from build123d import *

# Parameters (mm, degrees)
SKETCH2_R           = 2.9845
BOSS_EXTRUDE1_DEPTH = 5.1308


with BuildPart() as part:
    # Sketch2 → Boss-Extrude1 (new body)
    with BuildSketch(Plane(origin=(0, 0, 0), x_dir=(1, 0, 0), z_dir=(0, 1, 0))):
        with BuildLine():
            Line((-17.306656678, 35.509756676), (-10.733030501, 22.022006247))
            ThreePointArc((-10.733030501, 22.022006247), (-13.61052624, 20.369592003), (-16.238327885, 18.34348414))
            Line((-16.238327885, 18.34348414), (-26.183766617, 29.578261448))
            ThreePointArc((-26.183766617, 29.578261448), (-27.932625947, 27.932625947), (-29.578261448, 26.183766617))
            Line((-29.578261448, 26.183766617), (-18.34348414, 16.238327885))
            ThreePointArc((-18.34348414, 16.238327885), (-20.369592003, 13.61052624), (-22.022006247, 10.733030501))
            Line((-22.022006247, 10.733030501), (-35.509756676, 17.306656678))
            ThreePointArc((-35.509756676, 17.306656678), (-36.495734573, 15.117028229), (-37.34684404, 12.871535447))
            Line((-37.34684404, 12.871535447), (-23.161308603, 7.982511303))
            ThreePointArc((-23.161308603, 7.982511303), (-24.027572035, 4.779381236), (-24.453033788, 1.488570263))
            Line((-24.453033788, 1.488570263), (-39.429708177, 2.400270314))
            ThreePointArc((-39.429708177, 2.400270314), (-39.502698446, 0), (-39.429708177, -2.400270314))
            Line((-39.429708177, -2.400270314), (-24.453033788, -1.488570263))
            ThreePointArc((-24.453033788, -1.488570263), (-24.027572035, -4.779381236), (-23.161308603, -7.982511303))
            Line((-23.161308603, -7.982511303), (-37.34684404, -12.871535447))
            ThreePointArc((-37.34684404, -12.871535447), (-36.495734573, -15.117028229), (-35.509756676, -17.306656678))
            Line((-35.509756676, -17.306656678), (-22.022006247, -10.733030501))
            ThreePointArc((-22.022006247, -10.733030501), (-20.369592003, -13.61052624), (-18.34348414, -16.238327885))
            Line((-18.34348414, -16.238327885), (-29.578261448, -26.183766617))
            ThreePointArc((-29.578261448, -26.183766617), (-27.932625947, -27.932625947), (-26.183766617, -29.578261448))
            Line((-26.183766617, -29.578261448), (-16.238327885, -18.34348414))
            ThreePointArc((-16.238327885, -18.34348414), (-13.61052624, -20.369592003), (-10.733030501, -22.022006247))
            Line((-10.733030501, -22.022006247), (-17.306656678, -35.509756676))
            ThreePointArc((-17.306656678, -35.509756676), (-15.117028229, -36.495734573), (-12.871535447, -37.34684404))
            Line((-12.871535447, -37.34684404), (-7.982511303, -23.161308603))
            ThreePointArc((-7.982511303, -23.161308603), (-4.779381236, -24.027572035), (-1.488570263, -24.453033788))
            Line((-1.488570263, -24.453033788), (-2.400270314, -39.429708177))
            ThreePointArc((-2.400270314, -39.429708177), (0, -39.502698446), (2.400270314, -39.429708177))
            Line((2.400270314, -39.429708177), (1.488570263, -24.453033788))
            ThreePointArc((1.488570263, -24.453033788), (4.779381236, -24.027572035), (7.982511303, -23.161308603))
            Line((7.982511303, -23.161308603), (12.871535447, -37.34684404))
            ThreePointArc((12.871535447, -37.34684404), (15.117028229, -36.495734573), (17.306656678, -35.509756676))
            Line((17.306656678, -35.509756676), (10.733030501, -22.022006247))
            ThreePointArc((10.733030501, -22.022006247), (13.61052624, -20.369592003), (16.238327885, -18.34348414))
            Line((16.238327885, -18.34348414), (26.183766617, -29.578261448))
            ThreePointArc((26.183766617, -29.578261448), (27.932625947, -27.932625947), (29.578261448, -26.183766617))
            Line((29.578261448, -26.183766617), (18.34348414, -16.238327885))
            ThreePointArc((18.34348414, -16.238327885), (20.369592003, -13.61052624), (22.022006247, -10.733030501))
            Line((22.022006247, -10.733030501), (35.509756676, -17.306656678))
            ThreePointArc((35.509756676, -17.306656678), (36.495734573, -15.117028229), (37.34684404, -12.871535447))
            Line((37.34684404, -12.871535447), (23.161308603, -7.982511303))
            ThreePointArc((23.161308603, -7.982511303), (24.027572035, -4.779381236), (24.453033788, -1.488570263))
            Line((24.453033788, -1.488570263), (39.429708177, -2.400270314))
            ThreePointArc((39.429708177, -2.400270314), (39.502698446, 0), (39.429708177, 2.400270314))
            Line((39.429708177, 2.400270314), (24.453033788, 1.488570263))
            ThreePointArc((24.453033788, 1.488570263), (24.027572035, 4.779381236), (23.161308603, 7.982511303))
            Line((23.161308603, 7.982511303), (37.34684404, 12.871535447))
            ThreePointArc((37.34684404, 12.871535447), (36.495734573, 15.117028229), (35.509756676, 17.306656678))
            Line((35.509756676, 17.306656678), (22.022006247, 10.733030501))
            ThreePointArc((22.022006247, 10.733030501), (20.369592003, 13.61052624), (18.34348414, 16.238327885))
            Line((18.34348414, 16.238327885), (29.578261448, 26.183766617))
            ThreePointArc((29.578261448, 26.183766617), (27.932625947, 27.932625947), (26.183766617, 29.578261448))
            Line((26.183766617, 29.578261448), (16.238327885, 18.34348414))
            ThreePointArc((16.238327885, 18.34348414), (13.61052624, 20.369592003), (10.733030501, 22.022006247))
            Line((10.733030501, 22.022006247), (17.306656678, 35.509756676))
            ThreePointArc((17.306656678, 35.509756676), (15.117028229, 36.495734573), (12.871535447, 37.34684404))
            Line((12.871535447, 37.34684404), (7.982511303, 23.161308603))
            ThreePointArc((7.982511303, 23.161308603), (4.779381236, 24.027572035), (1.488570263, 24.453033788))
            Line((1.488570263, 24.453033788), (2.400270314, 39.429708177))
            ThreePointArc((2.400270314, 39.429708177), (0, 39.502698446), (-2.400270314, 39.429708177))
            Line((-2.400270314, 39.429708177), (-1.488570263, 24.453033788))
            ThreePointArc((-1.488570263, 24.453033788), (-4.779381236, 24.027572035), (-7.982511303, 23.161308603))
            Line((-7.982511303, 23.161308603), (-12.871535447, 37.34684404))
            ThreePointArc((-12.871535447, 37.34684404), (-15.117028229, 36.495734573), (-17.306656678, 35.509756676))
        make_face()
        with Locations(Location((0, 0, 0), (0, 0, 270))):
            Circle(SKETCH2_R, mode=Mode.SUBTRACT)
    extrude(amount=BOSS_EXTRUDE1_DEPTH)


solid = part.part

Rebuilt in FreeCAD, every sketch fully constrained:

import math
import FreeCAD as App
import Part
import Sketcher

V = App.Vector
Q = App.Units.Quantity

doc = App.newDocument("Part")
body = doc.addObject("PartDesign::Body", "Body")

# Sketch on XZ plane
sketch1 = doc.addObject("Sketcher::SketchObject", "Sketch")
body.addObject(sketch1)
sketch1.AttachmentSupport = (doc.XZ_Plane, [""])
sketch1.MapMode = "FlatFace"
sketch1.addGeometry(Part.LineSegment(V(-17.3, -35.5, 0), V(-10.7, -22, 0)), False)
sketch1.addGeometry(Part.ArcOfCircle(Part.Circle(V(0, 0, 0), V(0, 0, 1), 24.5), math.radians(-131.52), math.radians(-115.98)), False)
sketch1.addGeometry(Part.LineSegment(V(-16.2, -18.3, 0), V(-26.2, -29.6, 0)), False)
sketch1.addGeometry(Part.ArcOfCircle(Part.Circle(V(0, 0, 0), V(0, 0, 1), 39.5), math.radians(-138.48), math.radians(-131.52)), False)
sketch1.addGeometry(Part.LineSegment(V(-29.6, -26.2, 0), V(-18.3, -16.2, 0)), False)
sketch1.addGeometry(Part.ArcOfCircle(Part.Circle(V(0, 0, 0), V(0, 0, 1), 24.5), math.radians(-154.02), math.radians(-138.48)), False)
sketch1.addGeometry(Part.LineSegment(V(-22, -10.7, 0), V(-35.5, -17.3, 0)), False)
sketch1.addGeometry(Part.ArcOfCircle(Part.Circle(V(0, 0, 0), V(0, 0, 1), 39.5), math.radians(-160.98), math.radians(-154.02)), False)
sketch1.addGeometry(Part.LineSegment(V(-37.3, -12.9, 0), V(-23.2, -8, 0)), False)
sketch1.addGeometry(Part.ArcOfCircle(Part.Circle(V(0, 0, 0), V(0, 0, 1), 24.5), math.radians(-176.52), math.radians(-160.98)), False)
sketch1.addGeometry(Part.LineSegment(V(-24.5, -1.5, 0), V(-39.4, -2.4, 0)), False)
sketch1.addGeometry(Part.ArcOfCircle(Part.Circle(V(0, 0, 0), V(0, 0, 1), 39.5), math.radians(176.52), math.radians(183.48)), False)
sketch1.addGeometry(Part.LineSegment(V(-39.4, 2.4, 0), V(-24.5, 1.5, 0)), False)
sketch1.addGeometry(Part.ArcOfCircle(Part.Circle(V(0, 0, 0), V(0, 0, 1), 24.5), math.radians(160.98), math.radians(176.52)), False)
sketch1.addGeometry(Part.LineSegment(V(-23.2, 8, 0), V(-37.3, 12.9, 0)), False)
sketch1.addGeometry(Part.ArcOfCircle(Part.Circle(V(0, 0, 0), V(0, 0, 1), 39.5), math.radians(154.02), math.radians(160.98)), False)
sketch1.addGeometry(Part.LineSegment(V(-35.5, 17.3, 0), V(-22, 10.7, 0)), False)
sketch1.addGeometry(Part.ArcOfCircle(Part.Circle(V(0, 0, 0), V(0, 0, 1), 24.5), math.radians(138.48), math.radians(154.02)), False)
sketch1.addGeometry(Part.LineSegment(V(-18.3, 16.2, 0), V(-29.6, 26.2, 0)), False)
sketch1.addGeometry(Part.ArcOfCircle(Part.Circle(V(0, 0, 0), V(0, 0, 1), 39.5), math.radians(131.52), math.radians(138.48)), False)
sketch1.addGeometry(Part.LineSegment(V(-26.2, 29.6, 0), V(-16.2, 18.3, 0)), False)
sketch1.addGeometry(Part.ArcOfCircle(Part.Circle(V(0, 0, 0), V(0, 0, 1), 24.5), math.radians(115.98), math.radians(131.52)), False)
sketch1.addGeometry(Part.LineSegment(V(-10.7, 22, 0), V(-17.3, 35.5, 0)), False)
sketch1.addGeometry(Part.ArcOfCircle(Part.Circle(V(0, 0, 0), V(0, 0, 1), 39.5), math.radians(109.02), math.radians(115.98)), False)
sketch1.addGeometry(Part.LineSegment(V(-12.9, 37.3, 0), V(-8, 23.2, 0)), False)
sketch1.addGeometry(Part.ArcOfCircle(Part.Circle(V(0, 0, 0), V(0, 0, 1), 24.5), math.radians(93.48), math.radians(109.02)), False)
sketch1.addGeometry(Part.LineSegment(V(-1.5, 24.5, 0), V(-2.4, 39.4, 0)), False)
sketch1.addGeometry(Part.ArcOfCircle(Part.Circle(V(0, 0, 0), V(0, 0, 1), 39.5), math.radians(86.52), math.radians(93.48)), False)
sketch1.addGeometry(Part.LineSegment(V(2.4, 39.4, 0), V(1.5, 24.5, 0)), False)
sketch1.addGeometry(Part.ArcOfCircle(Part.Circle(V(0, 0, 0), V(0, 0, 1), 24.5), math.radians(70.98), math.radians(86.52)), False)
sketch1.addGeometry(Part.LineSegment(V(8, 23.2, 0), V(12.9, 37.3, 0)), False)
sketch1.addGeometry(Part.ArcOfCircle(Part.Circle(V(0, 0, 0), V(0, 0, 1), 39.5), math.radians(64.02), math.radians(70.98)), False)
sketch1.addGeometry(Part.LineSegment(V(17.3, 35.5, 0), V(10.7, 22, 0)), False)
sketch1.addGeometry(Part.ArcOfCircle(Part.Circle(V(0, 0, 0), V(0, 0, 1), 24.5), math.radians(48.48), math.radians(64.02)), False)
sketch1.addGeometry(Part.LineSegment(V(16.2, 18.3, 0), V(26.2, 29.6, 0)), False)
sketch1.addGeometry(Part.ArcOfCircle(Part.Circle(V(0, 0, 0), V(0, 0, 1), 39.5), math.radians(41.52), math.radians(48.48)), False)
sketch1.addGeometry(Part.LineSegment(V(29.6, 26.2, 0), V(18.3, 16.2, 0)), False)
sketch1.addGeometry(Part.ArcOfCircle(Part.Circle(V(0, 0, 0), V(0, 0, 1), 24.5), math.radians(25.98), math.radians(41.52)), False)
sketch1.addGeometry(Part.LineSegment(V(22, 10.7, 0), V(35.5, 17.3, 0)), False)
sketch1.addGeometry(Part.ArcOfCircle(Part.Circle(V(0, 0, 0), V(0, 0, 1), 39.5), math.radians(19.02), math.radians(25.98)), False)
sketch1.addGeometry(Part.LineSegment(V(37.3, 12.9, 0), V(23.2, 8, 0)), False)
sketch1.addGeometry(Part.ArcOfCircle(Part.Circle(V(0, 0, 0), V(0, 0, 1), 24.5), math.radians(3.48), math.radians(19.02)), False)
sketch1.addGeometry(Part.LineSegment(V(24.5, 1.5, 0), V(39.4, 2.4, 0)), False)
sketch1.addGeometry(Part.ArcOfCircle(Part.Circle(V(0, 0, 0), V(0, 0, 1), 39.5), math.radians(-3.48), math.radians(3.48)), False)
sketch1.addGeometry(Part.LineSegment(V(39.4, -2.4, 0), V(24.5, -1.5, 0)), False)
sketch1.addGeometry(Part.ArcOfCircle(Part.Circle(V(0, 0, 0), V(0, 0, 1), 24.5), math.radians(-19.02), math.radians(-3.48)), False)
sketch1.addGeometry(Part.LineSegment(V(23.2, -8, 0), V(37.3, -12.9, 0)), False)
sketch1.addGeometry(Part.ArcOfCircle(Part.Circle(V(0, 0, 0), V(0, 0, 1), 39.5), math.radians(-25.98), math.radians(-19.02)), False)
sketch1.addGeometry(Part.LineSegment(V(35.5, -17.3, 0), V(22, -10.7, 0)), False)
sketch1.addGeometry(Part.ArcOfCircle(Part.Circle(V(0, 0, 0), V(0, 0, 1), 24.5), math.radians(-41.52), math.radians(-25.98)), False)
sketch1.addGeometry(Part.LineSegment(V(18.3, -16.2, 0), V(29.6, -26.2, 0)), False)
sketch1.addGeometry(Part.ArcOfCircle(Part.Circle(V(0, 0, 0), V(0, 0, 1), 39.5), math.radians(-48.48), math.radians(-41.52)), False)
sketch1.addGeometry(Part.LineSegment(V(26.2, -29.6, 0), V(16.2, -18.3, 0)), False)
sketch1.addGeometry(Part.ArcOfCircle(Part.Circle(V(0, 0, 0), V(0, 0, 1), 24.5), math.radians(-64.02), math.radians(-48.48)), False)
sketch1.addGeometry(Part.LineSegment(V(10.7, -22, 0), V(17.3, -35.5, 0)), False)
sketch1.addGeometry(Part.ArcOfCircle(Part.Circle(V(0, 0, 0), V(0, 0, 1), 39.5), math.radians(-70.98), math.radians(-64.02)), False)
sketch1.addGeometry(Part.LineSegment(V(12.9, -37.3, 0), V(8, -23.2, 0)), False)
sketch1.addGeometry(Part.ArcOfCircle(Part.Circle(V(0, 0, 0), V(0, 0, 1), 24.5), math.radians(-86.52), math.radians(-70.98)), False)
sketch1.addGeometry(Part.LineSegment(V(1.5, -24.5, 0), V(2.4, -39.4, 0)), False)
sketch1.addGeometry(Part.ArcOfCircle(Part.Circle(V(0, 0, 0), V(0, 0, 1), 39.5), math.radians(-93.48), math.radians(-86.52)), False)
sketch1.addGeometry(Part.LineSegment(V(-2.4, -39.4, 0), V(-1.5, -24.5, 0)), False)
sketch1.addGeometry(Part.ArcOfCircle(Part.Circle(V(0, 0, 0), V(0, 0, 1), 24.5), math.radians(-109.02), math.radians(-93.48)), False)
sketch1.addGeometry(Part.LineSegment(V(-8, -23.2, 0), V(-12.9, -37.3, 0)), False)
sketch1.addGeometry(Part.ArcOfCircle(Part.Circle(V(0, 0, 0), V(0, 0, 1), 39.5), math.radians(-115.98), math.radians(-109.02)), False)
sketch1.addGeometry(Part.Circle(V(0, 0, 0), V(0, 0, 1), 3), False)
sketch1.addConstraint(Sketcher.Constraint("Coincident", 0, 2, 1, 2))
sketch1.addConstraint(Sketcher.Constraint("Coincident", 1, 1, 2, 1))
sketch1.addConstraint(Sketcher.Constraint("Coincident", 2, 2, 3, 2))
sketch1.addConstraint(Sketcher.Constraint("Coincident", 3, 1, 4, 1))
sketch1.addConstraint(Sketcher.Constraint("Coincident", 4, 2, 5, 2))
sketch1.addConstraint(Sketcher.Constraint("Coincident", 5, 1, 6, 1))
sketch1.addConstraint(Sketcher.Constraint("Coincident", 6, 2, 7, 2))
sketch1.addConstraint(Sketcher.Constraint("Coincident", 7, 1, 8, 1))
sketch1.addConstraint(Sketcher.Constraint("Coincident", 8, 2, 9, 2))
sketch1.addConstraint(Sketcher.Constraint("Coincident", 9, 1, 10, 1))
sketch1.addConstraint(Sketcher.Constraint("Coincident", 10, 2, 11, 2))
sketch1.addConstraint(Sketcher.Constraint("Coincident", 11, 1, 12, 1))
sketch1.addConstraint(Sketcher.Constraint("Coincident", 12, 2, 13, 2))
sketch1.addConstraint(Sketcher.Constraint("Coincident", 13, 1, 14, 1))
sketch1.addConstraint(Sketcher.Constraint("Coincident", 14, 2, 15, 2))
sketch1.addConstraint(Sketcher.Constraint("Coincident", 15, 1, 16, 1))
sketch1.addConstraint(Sketcher.Constraint("Coincident", 16, 2, 17, 2))
sketch1.addConstraint(Sketcher.Constraint("Coincident", 17, 1, 18, 1))
sketch1.addConstraint(Sketcher.Constraint("Coincident", 18, 2, 19, 2))
sketch1.addConstraint(Sketcher.Constraint("Coincident", 19, 1, 20, 1))
sketch1.addConstraint(Sketcher.Constraint("Coincident", 20, 2, 21, 2))
sketch1.addConstraint(Sketcher.Constraint("Coincident", 21, 1, 22, 1))
sketch1.addConstraint(Sketcher.Constraint("Coincident", 22, 2, 23, 2))
sketch1.addConstraint(Sketcher.Constraint("Coincident", 23, 1, 24, 1))
sketch1.addConstraint(Sketcher.Constraint("Coincident", 24, 2, 25, 2))
sketch1.addConstraint(Sketcher.Constraint("Coincident", 25, 1, 26, 1))
sketch1.addConstraint(Sketcher.Constraint("Coincident", 26, 2, 27, 2))
sketch1.addConstraint(Sketcher.Constraint("Coincident", 27, 1, 28, 1))
sketch1.addConstraint(Sketcher.Constraint("Coincident", 28, 2, 29, 2))
sketch1.addConstraint(Sketcher.Constraint("Coincident", 29, 1, 30, 1))
sketch1.addConstraint(Sketcher.Constraint("Coincident", 30, 2, 31, 2))
sketch1.addConstraint(Sketcher.Constraint("Coincident", 31, 1, 32, 1))
sketch1.addConstraint(Sketcher.Constraint("Coincident", 32, 2, 33, 2))
sketch1.addConstraint(Sketcher.Constraint("Coincident", 33, 1, 34, 1))
sketch1.addConstraint(Sketcher.Constraint("Coincident", 34, 2, 35, 2))
sketch1.addConstraint(Sketcher.Constraint("Coincident", 35, 1, 36, 1))
sketch1.addConstraint(Sketcher.Constraint("Coincident", 36, 2, 37, 2))
sketch1.addConstraint(Sketcher.Constraint("Coincident", 37, 1, 38, 1))
sketch1.addConstraint(Sketcher.Constraint("Coincident", 38, 2, 39, 2))
sketch1.addConstraint(Sketcher.Constraint("Coincident", 39, 1, 40, 1))
sketch1.addConstraint(Sketcher.Constraint("Coincident", 40, 2, 41, 2))
sketch1.addConstraint(Sketcher.Constraint("Coincident", 41, 1, 42, 1))
sketch1.addConstraint(Sketcher.Constraint("Coincident", 42, 2, 43, 2))
sketch1.addConstraint(Sketcher.Constraint("Coincident", 43, 1, 44, 1))
sketch1.addConstraint(Sketcher.Constraint("Coincident", 44, 2, 45, 2))
sketch1.addConstraint(Sketcher.Constraint("Coincident", 45, 1, 46, 1))
sketch1.addConstraint(Sketcher.Constraint("Coincident", 46, 2, 47, 2))
sketch1.addConstraint(Sketcher.Constraint("Coincident", 47, 1, 48, 1))
sketch1.addConstraint(Sketcher.Constraint("Coincident", 48, 2, 49, 2))
sketch1.addConstraint(Sketcher.Constraint("Coincident", 49, 1, 50, 1))
sketch1.addConstraint(Sketcher.Constraint("Coincident", 50, 2, 51, 2))
sketch1.addConstraint(Sketcher.Constraint("Coincident", 51, 1, 52, 1))
sketch1.addConstraint(Sketcher.Constraint("Coincident", 52, 2, 53, 2))
sketch1.addConstraint(Sketcher.Constraint("Coincident", 53, 1, 54, 1))
sketch1.addConstraint(Sketcher.Constraint("Coincident", 54, 2, 55, 2))
sketch1.addConstraint(Sketcher.Constraint("Coincident", 55, 1, 56, 1))
sketch1.addConstraint(Sketcher.Constraint("Coincident", 56, 2, 57, 2))
sketch1.addConstraint(Sketcher.Constraint("Coincident", 57, 1, 58, 1))
sketch1.addConstraint(Sketcher.Constraint("Coincident", 58, 2, 59, 2))
sketch1.addConstraint(Sketcher.Constraint("Coincident", 59, 1, 60, 1))
sketch1.addConstraint(Sketcher.Constraint("Coincident", 60, 2, 61, 2))
sketch1.addConstraint(Sketcher.Constraint("Coincident", 61, 1, 62, 1))
sketch1.addConstraint(Sketcher.Constraint("Coincident", 62, 2, 63, 2))
sketch1.addConstraint(Sketcher.Constraint("Coincident", 63, 1, 0, 1))
sketch1.addConstraint(Sketcher.Constraint("Coincident", 1, 3, -1, 1))
sketch1.addConstraint(Sketcher.Constraint("Coincident", 3, 3, -1, 1))
sketch1.addConstraint(Sketcher.Constraint("Coincident", 5, 3, -1, 1))
sketch1.addConstraint(Sketcher.Constraint("Coincident", 7, 3, -1, 1))
sketch1.addConstraint(Sketcher.Constraint("Coincident", 9, 3, -1, 1))
sketch1.addConstraint(Sketcher.Constraint("Coincident", 11, 3, -1, 1))
sketch1.addConstraint(Sketcher.Constraint("Coincident", 13, 3, -1, 1))
sketch1.addConstraint(Sketcher.Constraint("Coincident", 15, 3, -1, 1))
sketch1.addConstraint(Sketcher.Constraint("Coincident", 17, 3, -1, 1))
sketch1.addConstraint(Sketcher.Constraint("Coincident", 19, 3, -1, 1))
sketch1.addConstraint(Sketcher.Constraint("Coincident", 21, 3, -1, 1))
sketch1.addConstraint(Sketcher.Constraint("Coincident", 23, 3, -1, 1))
sketch1.addConstraint(Sketcher.Constraint("Coincident", 25, 3, -1, 1))
sketch1.addConstraint(Sketcher.Constraint("Coincident", 27, 3, -1, 1))
sketch1.addConstraint(Sketcher.Constraint("Coincident", 29, 3, -1, 1))
sketch1.addConstraint(Sketcher.Constraint("Coincident", 31, 3, -1, 1))
sketch1.addConstraint(Sketcher.Constraint("Coincident", 33, 3, -1, 1))
sketch1.addConstraint(Sketcher.Constraint("Coincident", 35, 3, -1, 1))
sketch1.addConstraint(Sketcher.Constraint("Coincident", 37, 3, -1, 1))
sketch1.addConstraint(Sketcher.Constraint("Coincident", 39, 3, -1, 1))
sketch1.addConstraint(Sketcher.Constraint("Coincident", 41, 3, -1, 1))
sketch1.addConstraint(Sketcher.Constraint("Coincident", 43, 3, -1, 1))
sketch1.addConstraint(Sketcher.Constraint("Coincident", 45, 3, -1, 1))
sketch1.addConstraint(Sketcher.Constraint("Coincident", 47, 3, -1, 1))
sketch1.addConstraint(Sketcher.Constraint("Coincident", 49, 3, -1, 1))
sketch1.addConstraint(Sketcher.Constraint("Coincident", 51, 3, -1, 1))
sketch1.addConstraint(Sketcher.Constraint("Coincident", 53, 3, -1, 1))
sketch1.addConstraint(Sketcher.Constraint("Coincident", 55, 3, -1, 1))
sketch1.addConstraint(Sketcher.Constraint("Coincident", 57, 3, -1, 1))
sketch1.addConstraint(Sketcher.Constraint("Coincident", 59, 3, -1, 1))
sketch1.addConstraint(Sketcher.Constraint("Coincident", 61, 3, -1, 1))
sketch1.addConstraint(Sketcher.Constraint("Coincident", 63, 3, -1, 1))
sketch1.addConstraint(Sketcher.Constraint("Coincident", 64, 3, -1, 1))
sketch1.addConstraint(Sketcher.Constraint("Equal", 1, 5))
sketch1.addConstraint(Sketcher.Constraint("Equal", 3, 7))
sketch1.addConstraint(Sketcher.Constraint("Equal", 5, 9))
sketch1.addConstraint(Sketcher.Constraint("Equal", 7, 11))
sketch1.addConstraint(Sketcher.Constraint("Equal", 9, 13))
sketch1.addConstraint(Sketcher.Constraint("Equal", 11, 15))
sketch1.addConstraint(Sketcher.Constraint("Equal", 13, 17))
sketch1.addConstraint(Sketcher.Constraint("Equal", 15, 19))
sketch1.addConstraint(Sketcher.Constraint("Equal", 17, 21))
sketch1.addConstraint(Sketcher.Constraint("Equal", 19, 23))
sketch1.addConstraint(Sketcher.Constraint("Equal", 21, 25))
sketch1.addConstraint(Sketcher.Constraint("Equal", 23, 27))
sketch1.addConstraint(Sketcher.Constraint("Equal", 25, 29))
sketch1.addConstraint(Sketcher.Constraint("Equal", 27, 31))
sketch1.addConstraint(Sketcher.Constraint("Equal", 29, 33))
sketch1.addConstraint(Sketcher.Constraint("Equal", 31, 35))
sketch1.addConstraint(Sketcher.Constraint("Equal", 33, 37))
sketch1.addConstraint(Sketcher.Constraint("Equal", 35, 39))
sketch1.addConstraint(Sketcher.Constraint("Equal", 37, 41))
sketch1.addConstraint(Sketcher.Constraint("Equal", 39, 43))
sketch1.addConstraint(Sketcher.Constraint("Equal", 41, 45))
sketch1.addConstraint(Sketcher.Constraint("Equal", 43, 47))
sketch1.addConstraint(Sketcher.Constraint("Equal", 45, 49))
sketch1.addConstraint(Sketcher.Constraint("Equal", 47, 51))
sketch1.addConstraint(Sketcher.Constraint("Equal", 49, 53))
sketch1.addConstraint(Sketcher.Constraint("Equal", 51, 55))
sketch1.addConstraint(Sketcher.Constraint("Equal", 53, 57))
sketch1.addConstraint(Sketcher.Constraint("Equal", 55, 59))
sketch1.addConstraint(Sketcher.Constraint("Equal", 57, 61))
sketch1.addConstraint(Sketcher.Constraint("Equal", 59, 63))
sketch1.addConstraint(Sketcher.Constraint("Perpendicular", 0, 16))
sketch1.addConstraint(Sketcher.Constraint("Perpendicular", 2, 18))
sketch1.addConstraint(Sketcher.Constraint("Perpendicular", 4, 20))
sketch1.addConstraint(Sketcher.Constraint("Perpendicular", 6, 22))
sketch1.addConstraint(Sketcher.Constraint("Perpendicular", 8, 24))
sketch1.addConstraint(Sketcher.Constraint("Perpendicular", 10, 26))
sketch1.addConstraint(Sketcher.Constraint("Perpendicular", 12, 28))
sketch1.addConstraint(Sketcher.Constraint("Perpendicular", 14, 30))
sketch1.addConstraint(Sketcher.Constraint("Perpendicular", 16, 32))
sketch1.addConstraint(Sketcher.Constraint("Perpendicular", 18, 34))
sketch1.addConstraint(Sketcher.Constraint("Perpendicular", 20, 36))
sketch1.addConstraint(Sketcher.Constraint("Perpendicular", 22, 38))
sketch1.addConstraint(Sketcher.Constraint("Perpendicular", 24, 40))
sketch1.addConstraint(Sketcher.Constraint("Perpendicular", 26, 42))
sketch1.addConstraint(Sketcher.Constraint("Perpendicular", 28, 44))
sketch1.addConstraint(Sketcher.Constraint("Perpendicular", 30, 46))
sketch1.addConstraint(Sketcher.Constraint("Perpendicular", 32, 48))
sketch1.addConstraint(Sketcher.Constraint("Perpendicular", 34, 50))
sketch1.addConstraint(Sketcher.Constraint("Perpendicular", 36, 52))
sketch1.addConstraint(Sketcher.Constraint("Perpendicular", 38, 54))
sketch1.addConstraint(Sketcher.Constraint("Perpendicular", 40, 56))
sketch1.addConstraint(Sketcher.Constraint("Perpendicular", 42, 58))
sketch1.addConstraint(Sketcher.Constraint("Perpendicular", 44, 60))
sketch1.addConstraint(Sketcher.Constraint("Perpendicular", 46, 62))
sketch1.addConstraint(Sketcher.Constraint("Horizontal", 26, 2, 27, 1))
sketch1.addConstraint(Sketcher.Constraint("Horizontal", 25, 1, 28, 2))
sketch1.addConstraint(Sketcher.Constraint("Horizontal", 24, 2, 29, 1))
sketch1.addConstraint(Sketcher.Constraint("Horizontal", 23, 1, 30, 2))
sketch1.addConstraint(Sketcher.Constraint("Horizontal", 22, 2, 31, 1))
sketch1.addConstraint(Sketcher.Constraint("Horizontal", 21, 1, 32, 2))
sketch1.addConstraint(Sketcher.Constraint("Horizontal", 20, 2, 33, 1))
sketch1.addConstraint(Sketcher.Constraint("Horizontal", 19, 1, 34, 2))
sketch1.addConstraint(Sketcher.Constraint("Horizontal", 18, 2, 35, 1))
sketch1.addConstraint(Sketcher.Constraint("Horizontal", 16, 2, 37, 1))
sketch1.addConstraint(Sketcher.Constraint("Horizontal", 14, 2, 39, 1))
sketch1.addConstraint(Sketcher.Constraint("Horizontal", 12, 2, 41, 1))
sketch1.addConstraint(Sketcher.Constraint("Horizontal", 10, 2, 43, 1))
sketch1.addConstraint(Sketcher.Constraint("Horizontal", 8, 2, 45, 1))
sketch1.addConstraint(Sketcher.Constraint("Horizontal", 6, 2, 47, 1))
sketch1.addConstraint(Sketcher.Constraint("Horizontal", 4, 2, 49, 1))
sketch1.addConstraint(Sketcher.Constraint("Horizontal", 2, 2, 51, 1))
sketch1.addConstraint(Sketcher.Constraint("Horizontal", 0, 2, 53, 1))
sketch1.addConstraint(Sketcher.Constraint("Horizontal", 58, 2, 59, 1))
sketch1.addConstraint(Sketcher.Constraint("Horizontal", 56, 2, 61, 1))
sketch1.addConstraint(Sketcher.Constraint("Vertical", 10, 2, 11, 1))
sketch1.addConstraint(Sketcher.Constraint("Vertical", 8, 2, 13, 1))
sketch1.addConstraint(Sketcher.Constraint("Vertical", 6, 2, 15, 1))
sketch1.addConstraint(Sketcher.Constraint("Vertical", 4, 2, 17, 1))
sketch1.addConstraint(Sketcher.Constraint("Vertical", 2, 2, 19, 1))
sketch1.addConstraint(Sketcher.Constraint("Vertical", 0, 2, 21, 1))
sketch1.addConstraint(Sketcher.Constraint("Vertical", 30, 2, 55, 1))
sketch1.addConstraint(Sketcher.Constraint("Vertical", 28, 2, 57, 1))
sketch1.addConstraint(Sketcher.Constraint("Diameter", 64, Q("0.235 in")))
sketch1.addConstraint(Sketcher.Constraint("Radius", 1, Q("0.9645 in")))
sketch1.addConstraint(Sketcher.Constraint("Radius", 3, 39.502698))
sketch1.addConstraint(Sketcher.Constraint("DistanceX", 0, 2, -1, 1, 10.733031))
sketch1.addConstraint(Sketcher.Constraint("DistanceY", 2, 2, -1, 1, 29.578261))
sketch1.addConstraint(Sketcher.Constraint("DistanceX", 3, 1, -1, 1, 29.578261))
sketch1.addConstraint(Sketcher.Constraint("DistanceY", 5, 1, -1, 1, 10.733031))
sketch1.addConstraint(Sketcher.Constraint("DistanceX", 8, 2, -1, 1, 23.161309))
sketch1.addConstraint(Sketcher.Constraint("DistanceY", 9, 1, -1, 1, 1.48857))
sketch1.addConstraint(Sketcher.Constraint("DistanceX", 10, 2, -1, 1, 39.429708))
sketch1.addConstraint(Sketcher.Constraint("DistanceX", 24, 2, -1, 1, 7.982511))
sketch1.addConstraint(Sketcher.Constraint("DistanceX", 25, 1, -1, 1, 1.48857))
sketch1.addConstraint(Sketcher.Constraint("DistanceX", 1, 1, -1, 1, 16.238328))
sketch1.addConstraint(Sketcher.Constraint("DistanceX", 6, 2, -1, 1, 35.509757))
sketch1.addConstraint(Sketcher.Constraint("DistanceX", 7, 1, -1, 1, 37.346844))
pad1 = doc.addObject("PartDesign::Pad", "Pad")
body.addObject(pad1)
pad1.Profile = sketch1
pad1.Length = Q("0.202 in")
pad1.Reversed = True

doc.recompute()
